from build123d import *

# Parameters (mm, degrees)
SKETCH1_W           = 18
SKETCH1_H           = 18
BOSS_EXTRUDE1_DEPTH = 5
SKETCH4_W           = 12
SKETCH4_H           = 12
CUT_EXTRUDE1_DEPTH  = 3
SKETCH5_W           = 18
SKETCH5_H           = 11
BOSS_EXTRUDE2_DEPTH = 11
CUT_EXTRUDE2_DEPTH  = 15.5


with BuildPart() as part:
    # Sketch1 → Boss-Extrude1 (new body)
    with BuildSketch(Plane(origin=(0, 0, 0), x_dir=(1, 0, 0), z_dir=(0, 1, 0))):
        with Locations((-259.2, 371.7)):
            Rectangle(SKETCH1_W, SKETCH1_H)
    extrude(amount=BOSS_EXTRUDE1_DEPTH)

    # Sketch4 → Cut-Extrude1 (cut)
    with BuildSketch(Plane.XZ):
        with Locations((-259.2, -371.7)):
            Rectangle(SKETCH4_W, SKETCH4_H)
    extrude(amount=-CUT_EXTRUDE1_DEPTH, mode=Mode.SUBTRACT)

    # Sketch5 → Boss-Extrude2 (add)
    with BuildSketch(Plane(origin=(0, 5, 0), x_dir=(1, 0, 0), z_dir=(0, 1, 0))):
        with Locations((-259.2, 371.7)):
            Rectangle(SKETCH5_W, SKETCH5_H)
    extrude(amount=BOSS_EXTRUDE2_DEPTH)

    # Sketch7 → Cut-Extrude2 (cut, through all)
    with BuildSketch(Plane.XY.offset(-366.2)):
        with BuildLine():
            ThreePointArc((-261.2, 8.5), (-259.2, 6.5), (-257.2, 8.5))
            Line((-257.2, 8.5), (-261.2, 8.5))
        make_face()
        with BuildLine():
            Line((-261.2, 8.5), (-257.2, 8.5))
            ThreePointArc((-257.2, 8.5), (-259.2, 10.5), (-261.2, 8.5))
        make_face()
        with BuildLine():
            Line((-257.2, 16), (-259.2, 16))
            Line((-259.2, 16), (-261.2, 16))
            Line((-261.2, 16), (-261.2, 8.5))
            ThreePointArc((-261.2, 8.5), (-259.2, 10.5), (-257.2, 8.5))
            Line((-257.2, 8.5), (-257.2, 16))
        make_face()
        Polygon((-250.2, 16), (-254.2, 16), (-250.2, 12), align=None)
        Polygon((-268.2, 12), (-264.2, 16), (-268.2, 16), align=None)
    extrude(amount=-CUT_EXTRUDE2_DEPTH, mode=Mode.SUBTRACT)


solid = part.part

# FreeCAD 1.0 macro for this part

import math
import FreeCAD as App
import Part
import Sketcher


def add_polygon(sketch, points):
    """Adds a closed chain of lines whose ends are joined by coincident constraints."""
    first, n = sketch.GeometryCount, len(points)
    for a, b in zip(points, points[1:] + points[:1]):
        sketch.addGeometry(Part.LineSegment(App.Vector(*a, 0), App.Vector(*b, 0)), False)
    for i in range(n):
        sketch.addConstraint(Sketcher.Constraint("Coincident", first + i, 2, first + (i + 1) % n, 1))

doc = App.newDocument("Part")
body = doc.addObject("PartDesign::Body", "Body")

# Sketch on XZ plane
sketch1 = body.newObject("Sketcher::SketchObject", "Sketch")
sketch1.AttachmentSupport = (doc.getObject("XZ_Plane"), [""])
sketch1.MapMode = "FlatFace"
add_polygon(sketch1, [(-268, -381), (-268, -363), (-250, -363), (-250, -381)])  # lines 0-3
sketch1.addConstraint([
    Sketcher.Constraint("Vertical", 0),
    Sketcher.Constraint("Horizontal", 1),
    Sketcher.Constraint("Vertical", 2),
    Sketcher.Constraint("Horizontal", 3),
    Sketcher.Constraint("Equal", 3, 0),
    Sketcher.Constraint("DistanceX", 1, 1, 1, 2, 18.0),
    Sketcher.Constraint("DistanceX", 0, 2, -1, 1, 268.2),
    Sketcher.Constraint("DistanceY", 0, 2, -1, 1, 362.7),
])
pad1 = body.newObject("PartDesign::Pad", "Pad")
pad1.Profile = sketch1
pad1.Length = 5
pad1.Reversed = True

# Sketch on XZ plane
sketch2 = body.newObject("Sketcher::SketchObject", "Sketch001")
sketch2.AttachmentSupport = (doc.getObject("XZ_Plane"), [""])
sketch2.MapMode = "FlatFace"
add_polygon(sketch2, [(-265, -366), (-265, -378), (-253, -378), (-253, -366)])  # lines 0-3
sketch2.addConstraint([
    Sketcher.Constraint("Vertical", 0),
    Sketcher.Constraint("Horizontal", 1),
    Sketcher.Constraint("Vertical", 2),
    Sketcher.Constraint("Horizontal", 3),
    Sketcher.Constraint("Equal", 3, 0),
    Sketcher.Constraint("DistanceX", 1, 1, 1, 2, 12.0),
    Sketcher.Constraint("DistanceX", 0, 2, -1, 1, 265.2),
    Sketcher.Constraint("DistanceY", 0, 2, -1, 1, 377.7),
])
pocket1 = body.newObject("PartDesign::Pocket", "Pocket")
pocket1.Profile = sketch2
pocket1.Length = 3

# Sketch on XZ plane
sketch3 = body.newObject("Sketcher::SketchObject", "Sketch002")
sketch3.AttachmentSupport = (doc.getObject("XZ_Plane"), [""])
sketch3.MapMode = "FlatFace"
sketch3.AttachmentOffset = App.Placement(App.Vector(0, 0, -5), App.Rotation())
add_polygon(sketch3, [(-268, -377), (-268, -366), (-250, -366), (-250, -377)])  # lines 0-3
sketch3.addConstraint([
    Sketcher.Constraint("Vertical", 0),
    Sketcher.Constraint("Horizontal", 1),
    Sketcher.Constraint("Vertical", 2),
    Sketcher.Constraint("Horizontal", 3),
    Sketcher.Constraint("DistanceX", 1, 1, 1, 2, 18.0),
    Sketcher.Constraint("DistanceY", 0, 1, 0, 2, 11.0),
    Sketcher.Constraint("DistanceX", 0, 2, -1, 1, 268.2),
    Sketcher.Constraint("DistanceY", 0, 2, -1, 1, 366.2),
])
pad2 = body.newObject("PartDesign::Pad", "Pad001")
pad2.Profile = sketch3
pad2.Length = 11
pad2.Reversed = True

# Sketch on XY plane
sketch4 = body.newObject("Sketcher::SketchObject", "Sketch003")
sketch4.AttachmentSupport = (doc.getObject("XY_Plane"), [""])
sketch4.MapMode = "FlatFace"
sketch4.AttachmentOffset = App.Placement(App.Vector(0, 0, -366.2), App.Rotation())
sketch4.addGeometry(Part.ArcOfCircle(Part.Circle(App.Vector(-259.2, 8.5, 0), App.Vector(0, 0, 1), 2), math.radians(180), math.radians(360)), False)  # 0
sketch4.addGeometry(Part.LineSegment(App.Vector(-257.2, 8.5, 0), App.Vector(-257.2, 16, 0)), False)  # 1
sketch4.addGeometry(Part.LineSegment(App.Vector(-257.2, 16, 0), App.Vector(-261.2, 16, 0)), False)  # 2
sketch4.addGeometry(Part.LineSegment(App.Vector(-261.2, 16, 0), App.Vector(-261.2, 8.5, 0)), False)  # 3
add_polygon(sketch4, [(-250.2, 16), (-254.2, 16), (-250.2, 12)])  # lines 4-6
add_polygon(sketch4, [(-268.2, 12), (-264.2, 16), (-268.2, 16)])  # lines 7-9
sketch4.addConstraint([
    Sketcher.Constraint("Tangent", 0, 2, 1, 1),
    Sketcher.Constraint("Coincident", 1, 2, 2, 1),
    Sketcher.Constraint("Coincident", 2, 2, 3, 1),
    Sketcher.Constraint("Tangent", 3, 2, 0, 1),
    Sketcher.Constraint("Vertical", 1),
    Sketcher.Constraint("Horizontal", 2),
    Sketcher.Constraint("Vertical", 3),
    Sketcher.Constraint("Horizontal", 4),
    Sketcher.Constraint("Vertical", 6),
    Sketcher.Constraint("Horizontal", 8),
    Sketcher.Constraint("Vertical", 9),
    Sketcher.Constraint("Perpendicular", 5, 7),
    Sketcher.Constraint("Horizontal", 2, 2, 4, 2),
    Sketcher.Constraint("Horizontal", 6, 2, 7, 2),
    Sketcher.Constraint("Horizontal", 5, 2, 9, 2),
    Sketcher.Constraint("Equal", 2, 4),
    Sketcher.Constraint("Equal", 4, 8),
    Sketcher.Constraint("Radius", 0, 2.0),
    Sketcher.Constraint("DistanceY", 1, 1, 1, 2, 7.5),
    Sketcher.Constraint("DistanceY", -1, 1, 1, 2, 16.0),
    Sketcher.Constraint("DistanceX", 1, 2, 4, 2, 3.0),
    Sketcher.Constraint("DistanceX", 7, 2, 2, 2, 3.0),
    Sketcher.Constraint("DistanceX", 0, 3, -1, 1, 259.2),
])
pocket2 = body.newObject("PartDesign::Pocket", "Pocket001")
pocket2.Profile = sketch4
pocket2.Type = "ThroughAll"

doc.recompute()
